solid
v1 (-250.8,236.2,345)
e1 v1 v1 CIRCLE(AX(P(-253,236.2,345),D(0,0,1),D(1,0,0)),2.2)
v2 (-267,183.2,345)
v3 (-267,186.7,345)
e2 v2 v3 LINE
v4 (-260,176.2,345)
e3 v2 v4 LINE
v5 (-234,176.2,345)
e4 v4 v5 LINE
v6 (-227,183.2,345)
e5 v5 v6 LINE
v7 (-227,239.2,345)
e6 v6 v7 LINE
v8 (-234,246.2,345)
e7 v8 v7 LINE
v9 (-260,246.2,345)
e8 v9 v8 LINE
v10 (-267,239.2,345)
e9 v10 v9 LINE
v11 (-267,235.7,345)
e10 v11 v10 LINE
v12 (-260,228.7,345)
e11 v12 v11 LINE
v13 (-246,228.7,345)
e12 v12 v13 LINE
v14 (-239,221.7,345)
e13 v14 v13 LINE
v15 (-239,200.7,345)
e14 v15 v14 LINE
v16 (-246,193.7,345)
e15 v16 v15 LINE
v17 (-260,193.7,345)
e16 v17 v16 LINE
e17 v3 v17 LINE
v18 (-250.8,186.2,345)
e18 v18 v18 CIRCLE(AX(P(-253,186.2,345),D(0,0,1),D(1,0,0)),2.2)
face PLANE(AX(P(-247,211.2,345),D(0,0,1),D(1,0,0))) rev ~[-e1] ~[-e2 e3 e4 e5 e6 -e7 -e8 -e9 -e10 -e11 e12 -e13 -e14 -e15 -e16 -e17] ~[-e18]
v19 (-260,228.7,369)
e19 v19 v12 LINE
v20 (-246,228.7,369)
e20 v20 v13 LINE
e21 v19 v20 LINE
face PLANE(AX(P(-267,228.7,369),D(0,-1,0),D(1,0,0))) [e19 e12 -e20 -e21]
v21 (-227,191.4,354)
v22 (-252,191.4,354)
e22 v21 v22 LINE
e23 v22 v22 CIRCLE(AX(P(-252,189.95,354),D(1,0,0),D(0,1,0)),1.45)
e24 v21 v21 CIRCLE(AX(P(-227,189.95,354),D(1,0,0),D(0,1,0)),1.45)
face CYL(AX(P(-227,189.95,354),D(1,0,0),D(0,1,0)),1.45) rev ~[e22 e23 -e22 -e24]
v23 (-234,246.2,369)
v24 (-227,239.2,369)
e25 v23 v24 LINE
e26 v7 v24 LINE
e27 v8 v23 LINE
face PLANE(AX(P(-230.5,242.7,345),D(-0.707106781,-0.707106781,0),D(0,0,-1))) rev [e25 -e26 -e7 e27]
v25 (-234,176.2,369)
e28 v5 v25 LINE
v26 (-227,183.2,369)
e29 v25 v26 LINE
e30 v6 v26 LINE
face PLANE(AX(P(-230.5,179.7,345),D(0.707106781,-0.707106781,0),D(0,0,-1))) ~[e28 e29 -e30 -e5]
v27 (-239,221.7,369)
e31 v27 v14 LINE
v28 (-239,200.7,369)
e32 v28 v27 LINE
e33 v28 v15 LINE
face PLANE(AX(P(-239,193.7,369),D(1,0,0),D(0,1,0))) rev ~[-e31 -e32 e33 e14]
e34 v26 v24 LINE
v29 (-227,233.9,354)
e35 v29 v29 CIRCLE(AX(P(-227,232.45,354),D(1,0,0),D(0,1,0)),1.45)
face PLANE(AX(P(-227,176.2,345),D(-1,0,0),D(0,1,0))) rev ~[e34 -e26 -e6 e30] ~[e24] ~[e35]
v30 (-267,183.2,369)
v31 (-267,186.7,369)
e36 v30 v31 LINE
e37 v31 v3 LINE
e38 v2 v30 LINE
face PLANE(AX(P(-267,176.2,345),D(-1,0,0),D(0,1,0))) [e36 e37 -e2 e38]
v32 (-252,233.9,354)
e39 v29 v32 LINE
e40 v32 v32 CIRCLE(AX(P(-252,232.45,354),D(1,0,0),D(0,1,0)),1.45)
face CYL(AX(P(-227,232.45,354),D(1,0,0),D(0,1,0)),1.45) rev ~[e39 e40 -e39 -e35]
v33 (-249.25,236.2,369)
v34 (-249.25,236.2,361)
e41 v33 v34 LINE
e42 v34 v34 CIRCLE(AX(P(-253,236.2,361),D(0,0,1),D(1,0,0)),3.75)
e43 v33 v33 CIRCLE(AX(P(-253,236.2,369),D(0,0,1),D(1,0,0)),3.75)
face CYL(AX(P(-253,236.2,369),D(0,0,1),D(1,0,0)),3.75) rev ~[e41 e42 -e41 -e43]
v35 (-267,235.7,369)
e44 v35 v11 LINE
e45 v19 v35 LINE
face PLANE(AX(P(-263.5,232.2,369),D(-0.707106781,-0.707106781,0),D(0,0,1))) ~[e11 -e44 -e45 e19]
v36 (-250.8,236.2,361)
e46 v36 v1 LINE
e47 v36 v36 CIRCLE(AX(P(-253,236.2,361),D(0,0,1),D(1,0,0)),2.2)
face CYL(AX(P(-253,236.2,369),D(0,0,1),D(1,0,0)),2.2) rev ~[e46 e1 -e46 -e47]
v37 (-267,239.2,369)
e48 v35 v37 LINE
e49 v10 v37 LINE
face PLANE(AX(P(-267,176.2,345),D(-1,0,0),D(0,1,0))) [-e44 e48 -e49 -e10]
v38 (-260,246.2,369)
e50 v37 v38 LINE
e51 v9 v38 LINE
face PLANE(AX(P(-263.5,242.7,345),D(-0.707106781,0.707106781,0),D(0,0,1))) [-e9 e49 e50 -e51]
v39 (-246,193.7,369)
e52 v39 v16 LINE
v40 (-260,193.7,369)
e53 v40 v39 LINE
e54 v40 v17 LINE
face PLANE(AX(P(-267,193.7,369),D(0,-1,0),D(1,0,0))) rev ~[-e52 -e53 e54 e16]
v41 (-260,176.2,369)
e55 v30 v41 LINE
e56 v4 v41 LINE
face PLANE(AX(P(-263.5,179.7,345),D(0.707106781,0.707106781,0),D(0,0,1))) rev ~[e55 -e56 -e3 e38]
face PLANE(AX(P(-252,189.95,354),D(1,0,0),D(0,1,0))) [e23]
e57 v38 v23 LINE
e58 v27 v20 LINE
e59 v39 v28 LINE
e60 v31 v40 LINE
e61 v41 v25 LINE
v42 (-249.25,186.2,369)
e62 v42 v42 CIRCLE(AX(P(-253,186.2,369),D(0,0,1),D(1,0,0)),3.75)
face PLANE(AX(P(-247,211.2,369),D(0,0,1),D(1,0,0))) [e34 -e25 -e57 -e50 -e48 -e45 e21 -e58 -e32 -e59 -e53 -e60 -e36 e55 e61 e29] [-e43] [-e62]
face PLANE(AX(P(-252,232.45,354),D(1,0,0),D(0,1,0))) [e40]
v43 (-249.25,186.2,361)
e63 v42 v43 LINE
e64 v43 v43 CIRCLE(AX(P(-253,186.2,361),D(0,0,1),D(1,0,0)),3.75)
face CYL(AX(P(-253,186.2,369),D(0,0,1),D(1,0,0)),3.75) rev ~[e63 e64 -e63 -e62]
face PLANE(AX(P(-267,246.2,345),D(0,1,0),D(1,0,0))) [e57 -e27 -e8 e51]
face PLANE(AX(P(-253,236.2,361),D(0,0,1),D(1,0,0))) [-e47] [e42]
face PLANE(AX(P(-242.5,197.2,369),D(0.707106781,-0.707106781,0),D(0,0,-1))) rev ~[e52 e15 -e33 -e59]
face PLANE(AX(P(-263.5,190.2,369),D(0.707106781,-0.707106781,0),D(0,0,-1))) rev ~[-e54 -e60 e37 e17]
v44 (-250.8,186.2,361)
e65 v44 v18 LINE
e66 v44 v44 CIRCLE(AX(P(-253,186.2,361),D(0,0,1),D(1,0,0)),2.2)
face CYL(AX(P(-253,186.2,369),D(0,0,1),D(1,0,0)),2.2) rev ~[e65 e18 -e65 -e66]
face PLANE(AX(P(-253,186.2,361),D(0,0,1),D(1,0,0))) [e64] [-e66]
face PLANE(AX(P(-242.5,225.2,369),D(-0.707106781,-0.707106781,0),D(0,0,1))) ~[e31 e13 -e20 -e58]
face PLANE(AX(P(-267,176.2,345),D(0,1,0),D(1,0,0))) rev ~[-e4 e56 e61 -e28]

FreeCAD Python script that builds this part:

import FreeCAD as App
import Part
import Sketcher
from FreeCAD import Vector
Q = App.Units.Quantity


def edges_at(feature, points):
    """Names of the edges that pass closest to the given points."""
    edges = feature.Shape.Edges
    near = lambda p: min(range(len(edges)), key=lambda i: edges[i].distToShape(Part.Vertex(*p))[0])
    return sorted({f"Edge{near(p) + 1}" for p in points})


def add_polygon(sketch, points):
    """Adds a closed chain of lines whose ends are joined by coincident constraints."""
    first, n = sketch.GeometryCount, len(points)
    for a, b in zip(points, points[1:] + points[:1]):
        sketch.addGeometry(Part.LineSegment(App.Vector(*a, 0), App.Vector(*b, 0)), False)
    for i in range(n):
        sketch.addConstraint(Sketcher.Constraint("Coincident", first + i, 2, first + (i + 1) % n, 1))

doc = App.newDocument("Part")
body = doc.addObject("PartDesign::Body", "Body")

# Sketch on XY plane
sketch1 = body.newObject("Sketcher::SketchObject", "Sketch")
sketch1.AttachmentSupport = (doc.getObject("XY_Plane"), [""])
sketch1.MapMode = "FlatFace"
sketch1.AttachmentOffset = App.Placement(Vector(0, 0, 345), App.Rotation())
add_polygon(sketch1, [(-267, 246), (-267, 176), (-227, 176), (-227, 246)])  # lines 0-3
sketch1.addConstraint(Sketcher.Constraint("Vertical", 0))
sketch1.addConstraint(Sketcher.Constraint("Horizontal", 1))
sketch1.addConstraint(Sketcher.Constraint("Vertical", 2))
sketch1.addConstraint(Sketcher.Constraint("Horizontal", 3))
sketch1.addConstraint(Sketcher.Constraint("DistanceX", 1, 1, 1, 2, Q("40 mm")))
sketch1.addConstraint(Sketcher.Constraint("DistanceY", 0, 2, 0, 1, Q("70 mm")))
sketch1.addConstraint(Sketcher.Constraint("DistanceX", 0, 2, -1, 1, Q("267 mm")))
sketch1.addConstraint(Sketcher.Constraint("DistanceY", -1, 1, 0, 2, Q("176.2 mm")))
pad1 = body.newObject("PartDesign::Pad", "Pad")
pad1.Profile = sketch1
pad1.Length = 24

# Sketch on XY plane
sketch2 = body.newObject("Sketcher::SketchObject", "Sketch001")
sketch2.AttachmentSupport = (doc.getObject("XY_Plane"), [""])
sketch2.MapMode = "FlatFace"
sketch2.AttachmentOffset = App.Placement(Vector(0, 0, 369), App.Rotation())
sketch2.addGeometry(Part.Circle(Vector(-253, 236.2, 0), Vector(0, 0, 1), 2.2), False)  # 0
sketch2.addGeometry(Part.Circle(Vector(-253, 186.2, 0), Vector(0, 0, 1), 2.2), False)  # 1
add_polygon(sketch2, [(-267, 228.7), (-267, 193.7), (-239, 193.7), (-239, 228.7)])  # lines 2-5
sketch2.addConstraint(Sketcher.Constraint("Vertical", 2))
sketch2.addConstraint(Sketcher.Constraint("Horizontal", 3))
sketch2.addConstraint(Sketcher.Constraint("Vertical", 4))
sketch2.addConstraint(Sketcher.Constraint("Horizontal", 5))
sketch2.addConstraint(Sketcher.Constraint("Equal", 0, 1))
sketch2.addConstraint(Sketcher.Constraint("Vertical", 0, 3, 1, 3))
sketch2.addConstraint(Sketcher.Constraint("Diameter", 0, Q("4.4 mm")))
sketch2.addConstraint(Sketcher.Constraint("DistanceX", 3, 1, 3, 2, Q("28 mm")))
sketch2.addConstraint(Sketcher.Constraint("DistanceY", 2, 2, 2, 1, Q("35 mm")))
sketch2.addConstraint(Sketcher.Constraint("DistanceX", 0, 3, -1, 1, Q("253 mm")))
sketch2.addConstraint(Sketcher.Constraint("DistanceX", 2, 2, -1, 1, Q("267 mm")))
sketch2.addConstraint(Sketcher.Constraint("DistanceY", 1, 3, 0, 3, Q("50 mm")))
sketch2.addConstraint(Sketcher.Constraint("DistanceY", -1, 1, 0, 3, Q("236.2 mm")))
sketch2.addConstraint(Sketcher.Constraint("DistanceY", -1, 1, 2, 2, Q("193.7 mm")))
pocket1 = body.newObject("PartDesign::Pocket", "Pocket")
pocket1.Profile = sketch2
pocket1.Length = 37
doc.recompute()

chamfer = body.newObject("PartDesign::Chamfer", "Chamfer")
chamfer.Base = (pocket1, edges_at(pocket1, [
    (-227, 176.2, 357),
    (-267, 176.2, 357),
    (-267, 193.7, 357),
    (-239, 193.7, 357),
    (-239, 228.7, 357),
    (-267, 228.7, 357),
    (-267, 246.2, 357),
    (-227, 246.2, 357),
]))
chamfer.Size = 7

# Sketch on XY plane
sketch3 = body.newObject("Sketcher::SketchObject", "Sketch002")
sketch3.AttachmentSupport = (doc.getObject("XY_Plane"), [""])
sketch3.MapMode = "FlatFace"
sketch3.AttachmentOffset = App.Placement(Vector(0, 0, 369), App.Rotation())
sketch3.addGeometry(Part.Circle(Vector(-253, 236.2, 0), Vector(0, 0, 1), 3.8), False)
sketch3.addGeometry(Part.Circle(Vector(-253, 186.2, 0), Vector(0, 0, 1), 3.8), False)
sketch3.addConstraint(Sketcher.Constraint("Equal", 0, 1))
sketch3.addConstraint(Sketcher.Constraint("Vertical", 0, 3, 1, 3))
sketch3.addConstraint(Sketcher.Constraint("Diameter", 0, Q("7.5 mm")))
sketch3.addConstraint(Sketcher.Constraint("DistanceX", 0, 3, -1, 1, Q("253 mm")))
sketch3.addConstraint(Sketcher.Constraint("DistanceY", 1, 3, 0, 3, Q("50 mm")))
sketch3.addConstraint(Sketcher.Constraint("DistanceY", -1, 1, 0, 3, Q("236.2 mm")))
pocket2 = body.newObject("PartDesign::Pocket", "Pocket001")
pocket2.Profile = sketch3
pocket2.Length = 8

# Sketch on YZ plane
sketch4 = body.newObject("Sketcher::SketchObject", "Sketch003")
sketch4.AttachmentSupport = (doc.getObject("YZ_Plane"), [""])
sketch4.MapMode = "FlatFace"
sketch4.AttachmentOffset = App.Placement(Vector(0, 0, -227), App.Rotation())
sketch4.addGeometry(Part.Circle(Vector(189.9, 354, 0), Vector(0, 0, 1), 1.4), False)
sketch4.addGeometry(Part.Circle(Vector(232.4, 354, 0), Vector(0, 0, 1), 1.4), False)
sketch4.addConstraint(Sketcher.Constraint("Equal", 0, 1))
sketch4.addConstraint(Sketcher.Constraint("Horizontal", 0, 3, 1, 3))
sketch4.addConstraint(Sketcher.Constraint("Diameter", 0, Q("2.9 mm")))
sketch4.addConstraint(Sketcher.Constraint("DistanceY", -1, 1, 0, 3, Q("354 mm")))
sketch4.addConstraint(Sketcher.Constraint("DistanceX", 0, 3, 1, 3, Q("42.5 mm")))
sketch4.addConstraint(Sketcher.Constraint("DistanceX", -1, 1, 0, 3, Q("189.95 mm")))
pocket3 = body.newObject("PartDesign::Pocket", "Pocket002")
pocket3.Profile = sketch4
pocket3.Length = 25

doc.recompute()
